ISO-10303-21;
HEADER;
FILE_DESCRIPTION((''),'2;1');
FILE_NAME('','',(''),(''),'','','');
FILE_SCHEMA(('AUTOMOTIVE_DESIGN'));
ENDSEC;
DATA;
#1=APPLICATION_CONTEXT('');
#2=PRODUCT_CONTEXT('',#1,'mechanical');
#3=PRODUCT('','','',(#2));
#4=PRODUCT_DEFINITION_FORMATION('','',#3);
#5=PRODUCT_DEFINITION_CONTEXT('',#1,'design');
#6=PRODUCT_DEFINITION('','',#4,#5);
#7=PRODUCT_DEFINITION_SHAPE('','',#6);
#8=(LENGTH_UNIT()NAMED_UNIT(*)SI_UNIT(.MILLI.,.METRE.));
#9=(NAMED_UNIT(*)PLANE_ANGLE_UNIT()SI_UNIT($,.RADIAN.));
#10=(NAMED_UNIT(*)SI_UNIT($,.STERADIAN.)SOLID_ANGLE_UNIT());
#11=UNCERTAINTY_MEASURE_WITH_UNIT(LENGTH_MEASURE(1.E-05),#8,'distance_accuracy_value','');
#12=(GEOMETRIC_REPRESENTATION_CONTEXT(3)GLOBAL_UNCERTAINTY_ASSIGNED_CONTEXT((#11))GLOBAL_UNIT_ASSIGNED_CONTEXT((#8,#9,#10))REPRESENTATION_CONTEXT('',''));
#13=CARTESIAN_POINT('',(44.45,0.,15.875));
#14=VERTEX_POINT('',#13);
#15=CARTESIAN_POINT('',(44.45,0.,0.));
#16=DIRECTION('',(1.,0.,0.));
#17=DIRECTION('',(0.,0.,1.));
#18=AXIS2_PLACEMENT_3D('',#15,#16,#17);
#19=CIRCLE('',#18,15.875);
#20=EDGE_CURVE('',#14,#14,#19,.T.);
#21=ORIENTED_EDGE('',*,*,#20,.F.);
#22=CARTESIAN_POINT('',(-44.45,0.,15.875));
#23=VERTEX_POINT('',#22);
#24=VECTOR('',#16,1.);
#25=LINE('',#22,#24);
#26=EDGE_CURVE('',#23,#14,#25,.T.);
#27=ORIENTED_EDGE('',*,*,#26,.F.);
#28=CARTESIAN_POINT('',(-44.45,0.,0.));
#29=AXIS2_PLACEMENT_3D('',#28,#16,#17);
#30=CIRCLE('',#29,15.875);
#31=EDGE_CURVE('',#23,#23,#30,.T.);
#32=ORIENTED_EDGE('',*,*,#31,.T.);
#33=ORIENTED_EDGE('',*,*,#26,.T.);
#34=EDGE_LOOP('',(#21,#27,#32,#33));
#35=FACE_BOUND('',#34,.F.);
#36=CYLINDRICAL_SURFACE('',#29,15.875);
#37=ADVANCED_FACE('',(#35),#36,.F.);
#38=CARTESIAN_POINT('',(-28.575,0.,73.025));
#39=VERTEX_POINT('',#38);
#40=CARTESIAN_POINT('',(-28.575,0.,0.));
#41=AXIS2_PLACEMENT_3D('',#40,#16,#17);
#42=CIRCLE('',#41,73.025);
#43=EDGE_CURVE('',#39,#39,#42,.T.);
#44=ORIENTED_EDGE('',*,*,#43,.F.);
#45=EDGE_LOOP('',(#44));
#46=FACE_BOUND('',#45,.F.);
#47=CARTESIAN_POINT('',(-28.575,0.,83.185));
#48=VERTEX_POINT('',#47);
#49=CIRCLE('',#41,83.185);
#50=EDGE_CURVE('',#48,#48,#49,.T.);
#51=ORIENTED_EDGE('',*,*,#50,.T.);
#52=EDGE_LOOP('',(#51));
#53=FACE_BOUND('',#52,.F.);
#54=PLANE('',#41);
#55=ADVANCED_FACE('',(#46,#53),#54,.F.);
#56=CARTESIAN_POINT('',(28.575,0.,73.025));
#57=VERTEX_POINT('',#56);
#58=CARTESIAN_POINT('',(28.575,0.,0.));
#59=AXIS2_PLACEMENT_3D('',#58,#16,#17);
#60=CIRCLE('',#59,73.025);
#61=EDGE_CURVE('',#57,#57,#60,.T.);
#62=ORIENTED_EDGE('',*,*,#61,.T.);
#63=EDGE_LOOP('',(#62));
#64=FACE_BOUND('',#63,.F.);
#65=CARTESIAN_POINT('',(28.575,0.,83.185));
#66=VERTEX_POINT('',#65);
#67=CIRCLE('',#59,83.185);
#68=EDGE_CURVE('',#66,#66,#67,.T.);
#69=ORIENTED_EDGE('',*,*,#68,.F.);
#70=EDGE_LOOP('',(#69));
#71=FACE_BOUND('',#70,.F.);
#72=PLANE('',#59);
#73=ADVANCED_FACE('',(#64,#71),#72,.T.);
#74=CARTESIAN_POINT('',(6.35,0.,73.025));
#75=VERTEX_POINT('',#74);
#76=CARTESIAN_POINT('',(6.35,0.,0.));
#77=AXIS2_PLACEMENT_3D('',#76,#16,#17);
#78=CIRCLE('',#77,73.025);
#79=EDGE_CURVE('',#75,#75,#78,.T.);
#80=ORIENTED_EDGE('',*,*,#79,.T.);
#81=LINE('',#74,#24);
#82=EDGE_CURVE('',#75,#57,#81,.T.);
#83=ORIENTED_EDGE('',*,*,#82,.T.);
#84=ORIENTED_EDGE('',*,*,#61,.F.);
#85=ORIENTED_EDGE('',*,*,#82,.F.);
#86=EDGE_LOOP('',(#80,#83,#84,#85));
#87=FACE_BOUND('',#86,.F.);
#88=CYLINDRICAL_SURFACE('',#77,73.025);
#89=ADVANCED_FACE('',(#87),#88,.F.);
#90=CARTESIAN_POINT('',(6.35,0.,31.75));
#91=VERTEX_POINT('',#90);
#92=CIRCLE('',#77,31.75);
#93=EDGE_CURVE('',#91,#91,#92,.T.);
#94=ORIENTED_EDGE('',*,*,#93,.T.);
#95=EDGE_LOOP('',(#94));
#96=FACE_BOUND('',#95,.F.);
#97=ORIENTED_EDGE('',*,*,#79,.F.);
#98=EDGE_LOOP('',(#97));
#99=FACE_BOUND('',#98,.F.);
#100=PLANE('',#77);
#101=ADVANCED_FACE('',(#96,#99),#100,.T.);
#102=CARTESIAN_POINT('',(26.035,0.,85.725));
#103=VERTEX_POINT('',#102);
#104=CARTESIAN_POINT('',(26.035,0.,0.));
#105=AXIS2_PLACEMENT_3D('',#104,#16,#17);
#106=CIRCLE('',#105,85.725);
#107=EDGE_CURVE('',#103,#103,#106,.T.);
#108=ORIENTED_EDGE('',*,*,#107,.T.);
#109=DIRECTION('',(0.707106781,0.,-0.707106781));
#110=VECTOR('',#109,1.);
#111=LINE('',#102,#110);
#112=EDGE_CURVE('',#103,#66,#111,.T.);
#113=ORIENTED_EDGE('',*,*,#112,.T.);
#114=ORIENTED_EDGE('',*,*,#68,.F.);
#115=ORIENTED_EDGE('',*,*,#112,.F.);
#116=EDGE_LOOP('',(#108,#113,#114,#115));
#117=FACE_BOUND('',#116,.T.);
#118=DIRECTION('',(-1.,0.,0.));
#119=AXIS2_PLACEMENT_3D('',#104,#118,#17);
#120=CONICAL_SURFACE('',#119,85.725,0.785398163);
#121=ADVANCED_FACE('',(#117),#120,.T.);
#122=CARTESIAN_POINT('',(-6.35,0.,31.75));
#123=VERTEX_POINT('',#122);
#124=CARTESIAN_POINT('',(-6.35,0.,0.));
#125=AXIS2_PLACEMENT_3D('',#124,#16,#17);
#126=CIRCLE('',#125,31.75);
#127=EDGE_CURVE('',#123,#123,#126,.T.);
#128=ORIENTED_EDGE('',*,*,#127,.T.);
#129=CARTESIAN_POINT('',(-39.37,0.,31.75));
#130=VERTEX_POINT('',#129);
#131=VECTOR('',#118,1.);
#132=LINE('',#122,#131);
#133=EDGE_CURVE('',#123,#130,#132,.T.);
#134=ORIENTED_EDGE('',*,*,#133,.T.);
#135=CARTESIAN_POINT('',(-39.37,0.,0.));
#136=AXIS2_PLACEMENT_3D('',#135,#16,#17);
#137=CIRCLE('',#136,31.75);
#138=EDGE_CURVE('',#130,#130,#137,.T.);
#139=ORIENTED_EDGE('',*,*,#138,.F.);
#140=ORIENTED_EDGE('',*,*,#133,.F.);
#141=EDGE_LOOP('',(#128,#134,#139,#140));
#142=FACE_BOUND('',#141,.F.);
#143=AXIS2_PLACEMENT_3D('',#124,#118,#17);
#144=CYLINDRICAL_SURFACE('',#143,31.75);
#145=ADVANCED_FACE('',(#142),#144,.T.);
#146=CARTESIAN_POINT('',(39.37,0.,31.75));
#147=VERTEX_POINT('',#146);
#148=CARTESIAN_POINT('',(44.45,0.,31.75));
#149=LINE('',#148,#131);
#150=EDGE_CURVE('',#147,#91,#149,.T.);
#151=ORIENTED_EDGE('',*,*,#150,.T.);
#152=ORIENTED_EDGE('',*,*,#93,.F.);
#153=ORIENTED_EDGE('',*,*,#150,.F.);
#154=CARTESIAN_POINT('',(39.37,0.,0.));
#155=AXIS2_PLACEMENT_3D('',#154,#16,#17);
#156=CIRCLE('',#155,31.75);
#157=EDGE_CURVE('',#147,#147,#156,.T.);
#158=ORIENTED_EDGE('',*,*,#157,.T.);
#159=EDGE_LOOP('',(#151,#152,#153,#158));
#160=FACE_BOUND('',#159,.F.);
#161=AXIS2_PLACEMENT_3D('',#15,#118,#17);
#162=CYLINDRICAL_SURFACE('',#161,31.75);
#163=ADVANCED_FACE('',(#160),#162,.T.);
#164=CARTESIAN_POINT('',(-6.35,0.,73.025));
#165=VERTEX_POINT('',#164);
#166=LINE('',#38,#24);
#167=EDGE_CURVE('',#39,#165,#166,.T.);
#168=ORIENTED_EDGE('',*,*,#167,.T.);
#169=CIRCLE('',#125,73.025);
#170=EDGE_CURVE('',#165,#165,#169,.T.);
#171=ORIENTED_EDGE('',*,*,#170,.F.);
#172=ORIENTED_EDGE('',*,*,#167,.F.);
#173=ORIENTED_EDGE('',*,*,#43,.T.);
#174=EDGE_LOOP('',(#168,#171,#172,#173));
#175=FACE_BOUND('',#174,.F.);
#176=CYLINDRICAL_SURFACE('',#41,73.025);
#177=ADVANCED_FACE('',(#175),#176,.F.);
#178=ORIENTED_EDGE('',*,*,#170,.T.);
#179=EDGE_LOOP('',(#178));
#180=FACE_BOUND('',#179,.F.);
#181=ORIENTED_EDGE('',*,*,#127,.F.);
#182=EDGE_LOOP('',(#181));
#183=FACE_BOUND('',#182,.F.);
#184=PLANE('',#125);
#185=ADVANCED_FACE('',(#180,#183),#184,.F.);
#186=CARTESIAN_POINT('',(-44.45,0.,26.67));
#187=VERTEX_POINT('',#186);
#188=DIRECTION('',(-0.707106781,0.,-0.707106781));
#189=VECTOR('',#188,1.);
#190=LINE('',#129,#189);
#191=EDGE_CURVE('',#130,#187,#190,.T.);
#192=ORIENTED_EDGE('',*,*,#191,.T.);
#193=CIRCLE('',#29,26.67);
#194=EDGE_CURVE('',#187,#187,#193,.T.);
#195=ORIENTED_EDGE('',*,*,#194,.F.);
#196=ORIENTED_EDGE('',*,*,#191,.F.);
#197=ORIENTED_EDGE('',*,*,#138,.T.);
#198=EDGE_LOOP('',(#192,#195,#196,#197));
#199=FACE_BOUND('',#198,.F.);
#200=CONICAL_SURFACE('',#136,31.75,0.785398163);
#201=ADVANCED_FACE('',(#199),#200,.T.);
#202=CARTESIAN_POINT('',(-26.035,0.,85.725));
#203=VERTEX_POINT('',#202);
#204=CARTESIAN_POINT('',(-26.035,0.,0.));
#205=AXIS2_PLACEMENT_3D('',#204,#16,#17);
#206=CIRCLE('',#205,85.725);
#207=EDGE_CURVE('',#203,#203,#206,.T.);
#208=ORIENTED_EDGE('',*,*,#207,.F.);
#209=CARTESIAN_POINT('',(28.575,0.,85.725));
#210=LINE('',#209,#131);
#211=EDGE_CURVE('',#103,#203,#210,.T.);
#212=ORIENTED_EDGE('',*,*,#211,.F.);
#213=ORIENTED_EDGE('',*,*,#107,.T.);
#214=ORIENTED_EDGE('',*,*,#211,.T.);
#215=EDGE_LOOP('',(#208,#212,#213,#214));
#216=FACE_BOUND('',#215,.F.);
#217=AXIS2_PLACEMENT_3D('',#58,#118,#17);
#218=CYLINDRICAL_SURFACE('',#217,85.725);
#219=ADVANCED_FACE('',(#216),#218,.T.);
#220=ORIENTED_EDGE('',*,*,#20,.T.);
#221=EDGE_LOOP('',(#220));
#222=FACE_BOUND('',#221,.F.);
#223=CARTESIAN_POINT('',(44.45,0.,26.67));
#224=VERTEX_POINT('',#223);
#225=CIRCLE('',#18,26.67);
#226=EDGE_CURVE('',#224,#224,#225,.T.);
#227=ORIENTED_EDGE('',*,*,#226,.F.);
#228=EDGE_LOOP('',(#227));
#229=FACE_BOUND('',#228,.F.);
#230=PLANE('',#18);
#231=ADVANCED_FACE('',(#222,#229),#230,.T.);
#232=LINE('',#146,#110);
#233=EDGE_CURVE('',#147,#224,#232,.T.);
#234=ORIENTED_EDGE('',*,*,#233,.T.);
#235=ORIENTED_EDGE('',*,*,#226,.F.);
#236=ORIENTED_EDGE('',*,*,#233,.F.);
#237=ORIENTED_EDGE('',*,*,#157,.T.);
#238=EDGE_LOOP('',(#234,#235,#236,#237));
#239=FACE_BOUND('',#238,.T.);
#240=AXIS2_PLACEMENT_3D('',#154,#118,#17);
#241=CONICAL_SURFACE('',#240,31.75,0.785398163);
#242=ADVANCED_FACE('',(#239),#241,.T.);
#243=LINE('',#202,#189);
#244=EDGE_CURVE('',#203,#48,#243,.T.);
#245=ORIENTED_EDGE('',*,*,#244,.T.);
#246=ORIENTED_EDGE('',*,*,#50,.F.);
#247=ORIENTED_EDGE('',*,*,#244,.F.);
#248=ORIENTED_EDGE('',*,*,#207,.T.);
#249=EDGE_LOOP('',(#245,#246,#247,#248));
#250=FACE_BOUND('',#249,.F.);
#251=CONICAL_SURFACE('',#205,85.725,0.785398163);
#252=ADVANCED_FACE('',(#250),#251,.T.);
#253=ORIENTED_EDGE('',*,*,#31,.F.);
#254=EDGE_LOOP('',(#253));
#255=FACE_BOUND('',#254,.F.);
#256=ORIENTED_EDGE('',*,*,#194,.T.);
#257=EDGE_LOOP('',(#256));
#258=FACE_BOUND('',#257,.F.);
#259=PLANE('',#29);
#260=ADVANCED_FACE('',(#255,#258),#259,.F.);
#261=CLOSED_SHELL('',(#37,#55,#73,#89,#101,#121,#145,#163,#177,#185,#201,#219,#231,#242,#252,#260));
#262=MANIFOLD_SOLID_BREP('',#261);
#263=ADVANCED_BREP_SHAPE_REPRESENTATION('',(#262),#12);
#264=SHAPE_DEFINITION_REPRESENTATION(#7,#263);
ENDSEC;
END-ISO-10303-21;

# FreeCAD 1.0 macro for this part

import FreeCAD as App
import Part
import Sketcher
from FreeCAD import Vector
Q = App.Units.Quantity


def edges_at(feature, points):
    """Names of the edges that pass closest to the given points."""
    edges = feature.Shape.Edges
    near = lambda p: min(range(len(edges)), key=lambda i: edges[i].distToShape(Part.Vertex(*p))[0])
    return sorted({f"Edge{near(p) + 1}" for p in points})

doc = App.newDocument("Part")
body = doc.addObject("PartDesign::Body", "Body")

# Sketch on XZ plane
sketch1 = doc.addObject("Sketcher::SketchObject", "Sketch")
body.addObject(sketch1)
sketch1.AttachmentSupport = (doc.XZ_Plane, [""])
sketch1.MapMode = "FlatFace"
sketch1.addGeometry([
    Part.LineSegment(Vector(29, 86, 0), Vector(-29, 86, 0)),  # 0
    Part.LineSegment(Vector(-29, 86, 0), Vector(-29, 73, 0)),  # 1
    Part.LineSegment(Vector(-29, 73, 0), Vector(-6, 73, 0)),  # 2
    Part.LineSegment(Vector(-6, 73, 0), Vector(-6, 32, 0)),  # 3
    Part.LineSegment(Vector(-6, 32, 0), Vector(-44, 32, 0)),  # 4
    Part.LineSegment(Vector(-44, 32, 0), Vector(-44, 16, 0)),  # 5
    Part.LineSegment(Vector(-44, 16, 0), Vector(44, 16, 0)),  # 6
    Part.LineSegment(Vector(44, 16, 0), Vector(44, 32, 0)),  # 7
    Part.LineSegment(Vector(44, 32, 0), Vector(6, 32, 0)),  # 8
    Part.LineSegment(Vector(6, 32, 0), Vector(6, 73, 0)),  # 9
    Part.LineSegment(Vector(6, 73, 0), Vector(29, 73, 0)),  # 10
    Part.LineSegment(Vector(29, 73, 0), Vector(29, 86, 0)),  # 11
], False)
sketch1.addConstraint([
    Sketcher.Constraint("Coincident", 0, 2, 1, 1),
    Sketcher.Constraint("Coincident", 1, 2, 2, 1),
    Sketcher.Constraint("Coincident", 2, 2, 3, 1),
    Sketcher.Constraint("Coincident", 3, 2, 4, 1),
    Sketcher.Constraint("Coincident", 4, 2, 5, 1),
    Sketcher.Constraint("Coincident", 5, 2, 6, 1),
    Sketcher.Constraint("Coincident", 6, 2, 7, 1),
    Sketcher.Constraint("Coincident", 7, 2, 8, 1),
    Sketcher.Constraint("Coincident", 8, 2, 9, 1),
    Sketcher.Constraint("Coincident", 9, 2, 10, 1),
    Sketcher.Constraint("Coincident", 10, 2, 11, 1),
    Sketcher.Constraint("Coincident", 11, 2, 0, 1),
    Sketcher.Constraint("Horizontal", 0),
    Sketcher.Constraint("Vertical", 1),
    Sketcher.Constraint("Horizontal", 2),
    Sketcher.Constraint("Vertical", 3),
    Sketcher.Constraint("Horizontal", 4),
    Sketcher.Constraint("Vertical", 5),
    Sketcher.Constraint("Horizontal", 6),
    Sketcher.Constraint("Vertical", 7),
    Sketcher.Constraint("Horizontal", 8),
    Sketcher.Constraint("Vertical", 9),
    Sketcher.Constraint("Horizontal", 10),
    Sketcher.Constraint("Vertical", 11),
    Sketcher.Constraint("Symmetric", 4, 2, 7, 2, -2),
    Sketcher.Constraint("Symmetric", 2, 2, 9, 2, -2),
    Sketcher.Constraint("Equal", 2, 10),
    Sketcher.Constraint("DistanceX", 4, 2, 4, 1, Q("1.5 in")),
    Sketcher.Constraint("DistanceX", 6, 1, 6, 2, Q("3.5 in")),
    Sketcher.Constraint("DistanceY", 1, 2, 1, 1, Q("0.5 in")),
    Sketcher.Constraint("DistanceX", 0, 2, 0, 1, Q("2.25 in")),
    Sketcher.Constraint("DistanceY", 3, 2, 3, 1, Q("1.625 in")),
    Sketcher.Constraint("DistanceY", 5, 2, 5, 1, Q("0.625 in")),
    Sketcher.Constraint("DistanceY", -1, 1, 3, 2, Q("1.25 in")),
])
revolution = doc.addObject("PartDesign::Revolution", "Revolution")
body.addObject(revolution)
revolution.Profile = sketch1
revolution.ReferenceAxis = (sketch1, ["H_Axis"])
revolution.Angle = 360
doc.recompute()

chamfer = doc.addObject("PartDesign::Chamfer", "Chamfer")
body.addObject(chamfer)
chamfer.Base = (revolution, edges_at(revolution, [(-28.575, 0, -85.725), (28.575, 0, -85.725)]))
chamfer.Size = Q("0.1 in")
doc.recompute()

chamfer2 = doc.addObject("PartDesign::Chamfer", "Chamfer001")
body.addObject(chamfer2)
chamfer2.Base = (chamfer, edges_at(chamfer, [(44.45, 0, -31.75), (-44.45, 0, -31.75)]))
chamfer2.Size = Q("0.2 in")

doc.recompute()
